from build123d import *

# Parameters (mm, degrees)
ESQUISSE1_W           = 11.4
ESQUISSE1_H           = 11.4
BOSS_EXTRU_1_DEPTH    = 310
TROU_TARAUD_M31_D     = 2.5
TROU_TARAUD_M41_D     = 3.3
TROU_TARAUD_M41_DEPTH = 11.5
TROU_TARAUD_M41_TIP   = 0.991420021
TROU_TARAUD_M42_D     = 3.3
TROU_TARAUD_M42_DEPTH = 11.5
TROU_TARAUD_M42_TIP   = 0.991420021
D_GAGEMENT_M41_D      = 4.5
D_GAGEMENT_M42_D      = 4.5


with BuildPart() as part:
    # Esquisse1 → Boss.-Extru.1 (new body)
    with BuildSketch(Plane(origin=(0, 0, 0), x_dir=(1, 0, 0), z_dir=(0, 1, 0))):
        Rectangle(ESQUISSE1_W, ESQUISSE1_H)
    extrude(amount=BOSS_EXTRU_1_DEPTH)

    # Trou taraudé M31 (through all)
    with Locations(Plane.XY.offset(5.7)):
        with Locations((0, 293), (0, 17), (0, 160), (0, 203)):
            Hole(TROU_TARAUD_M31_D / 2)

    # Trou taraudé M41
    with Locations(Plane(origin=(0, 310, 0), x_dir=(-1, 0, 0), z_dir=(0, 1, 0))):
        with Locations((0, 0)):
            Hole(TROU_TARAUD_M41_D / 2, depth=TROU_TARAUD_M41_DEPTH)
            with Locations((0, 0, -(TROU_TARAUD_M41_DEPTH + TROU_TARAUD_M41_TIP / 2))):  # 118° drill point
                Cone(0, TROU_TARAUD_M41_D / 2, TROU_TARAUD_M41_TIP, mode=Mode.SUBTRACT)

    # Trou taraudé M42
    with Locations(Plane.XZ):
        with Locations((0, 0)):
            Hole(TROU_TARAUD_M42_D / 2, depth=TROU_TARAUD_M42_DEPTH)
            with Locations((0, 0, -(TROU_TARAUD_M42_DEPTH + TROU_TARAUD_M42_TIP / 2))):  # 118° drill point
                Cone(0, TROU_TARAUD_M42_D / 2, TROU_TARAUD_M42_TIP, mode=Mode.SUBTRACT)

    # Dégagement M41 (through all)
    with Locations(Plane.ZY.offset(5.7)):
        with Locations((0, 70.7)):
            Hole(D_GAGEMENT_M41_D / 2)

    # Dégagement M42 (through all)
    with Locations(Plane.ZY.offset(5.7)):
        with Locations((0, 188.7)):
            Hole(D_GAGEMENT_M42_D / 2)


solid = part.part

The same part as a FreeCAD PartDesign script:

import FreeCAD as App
import Part
import Sketcher
from FreeCAD import Vector

doc = App.newDocument("Part")
params = doc.addObject("Spreadsheet::Sheet", "Params")
for row, (alias, value) in enumerate([
    ("sketch1_width", "11.4 mm"),
    ("pad1_length", "310 mm"),
    ("sketch2_diameter", "2.5 mm"),
    ("hole_diameter", "2.5 mm"),
    ("sketch3_diameter", "3.3 mm"),
    ("hole2_diameter", "3.3 mm"),
    ("hole2_depth", "11.5 mm"),
    ("sketch4_diameter", "3.3 mm"),
    ("hole3_diameter", "3.3 mm"),
    ("hole3_depth", "11.5 mm"),
    ("sketch5_diameter", "4.5 mm"),
    ("hole4_diameter", "4.5 mm"),
    ("sketch6_diameter", "4.5 mm"),
    ("hole5_diameter", "4.5 mm"),
], start=1):
    params.set(f"A{row}", alias)
    params.set(f"B{row}", "=" + value)
    params.setAlias(f"B{row}", alias)

body = doc.addObject("PartDesign::Body", "Body")

# Sketch on XZ plane
sketch1 = doc.addObject("Sketcher::SketchObject", "Sketch")
body.addObject(sketch1)
sketch1.AttachmentSupport = (doc.XZ_Plane, [""])
sketch1.MapMode = "FlatFace"
sketch1.addGeometry(Part.LineSegment(Vector(-6, -6, 0), Vector(-6, 6, 0)), False)
sketch1.addGeometry(Part.LineSegment(Vector(-6, 6, 0), Vector(6, 6, 0)), False)
sketch1.addGeometry(Part.LineSegment(Vector(6, 6, 0), Vector(6, -6, 0)), False)
sketch1.addGeometry(Part.LineSegment(Vector(6, -6, 0), Vector(-6, -6, 0)), False)
sketch1.addConstraint(Sketcher.Constraint("Coincident", 0, 2, 1, 1))
sketch1.addConstraint(Sketcher.Constraint("Coincident", 1, 2, 2, 1))
sketch1.addConstraint(Sketcher.Constraint("Coincident", 2, 2, 3, 1))
sketch1.addConstraint(Sketcher.Constraint("Coincident", 3, 2, 0, 1))
sketch1.addConstraint(Sketcher.Constraint("Vertical", 0))
sketch1.addConstraint(Sketcher.Constraint("Horizontal", 1))
sketch1.addConstraint(Sketcher.Constraint("Vertical", 2))
sketch1.addConstraint(Sketcher.Constraint("Horizontal", 3))
sketch1.addConstraint(Sketcher.Constraint("Symmetric", 0, 2, 2, 2, -1, 1))
sketch1.addConstraint(Sketcher.Constraint("Equal", 3, 0))
sketch1.addConstraint(Sketcher.Constraint("DistanceX", 1, 1, 1, 2, 11.4))
sketch1.setExpression("Constraints[10]", "Params.sketch1_width")
pad1 = doc.addObject("PartDesign::Pad", "Pad")
body.addObject(pad1)
pad1.Profile = sketch1
pad1.setExpression("Length", "Params.pad1_length")
pad1.Reversed = True

# Sketch on XY plane
sketch2 = doc.addObject("Sketcher::SketchObject", "Sketch001")
body.addObject(sketch2)
sketch2.AttachmentSupport = (doc.XY_Plane, [""])
sketch2.MapMode = "FlatFace"
sketch2.AttachmentOffset = App.Placement(Vector(0, 0, 5.7), App.Rotation())
sketch2.addGeometry(Part.Circle(Vector(0, 293, 0), Vector(0, 0, 1), 1.2), False)
sketch2.addGeometry(Part.Circle(Vector(0, 17, 0), Vector(0, 0, 1), 1.2), False)
sketch2.addGeometry(Part.Circle(Vector(0, 160, 0), Vector(0, 0, 1), 1.2), False)
sketch2.addGeometry(Part.Circle(Vector(0, 203, 0), Vector(0, 0, 1), 1.2), False)
sketch2.addConstraint(Sketcher.Constraint("Equal", 0, 1))
sketch2.addConstraint(Sketcher.Constraint("Equal", 1, 2))
sketch2.addConstraint(Sketcher.Constraint("Equal", 2, 3))
sketch2.addConstraint(Sketcher.Constraint("PointOnObject", 0, 3, -2))
sketch2.addConstraint(Sketcher.Constraint("PointOnObject", 1, 3, -2))
sketch2.addConstraint(Sketcher.Constraint("PointOnObject", 2, 3, -2))
sketch2.addConstraint(Sketcher.Constraint("PointOnObject", 3, 3, -2))
sketch2.addConstraint(Sketcher.Constraint("Diameter", 0, 2.5))
sketch2.addConstraint(Sketcher.Constraint("DistanceY", -1, 1, 0, 3, 293.0))
sketch2.addConstraint(Sketcher.Constraint("DistanceY", -1, 1, 1, 3, 17.0))
sketch2.addConstraint(Sketcher.Constraint("DistanceY", -1, 1, 2, 3, 160.0))
sketch2.addConstraint(Sketcher.Constraint("DistanceY", -1, 1, 3, 3, 203.0))
sketch2.setExpression("Constraints[7]", "Params.sketch2_diameter")
doc.recompute()
hole = doc.addObject("PartDesign::Hole", "Hole")
body.addObject(hole)
hole.Profile = sketch2
hole.ThreadType = "None"
hole.setExpression("Diameter", "Params.hole_diameter")
hole.DepthType = "ThroughAll"

# Sketch on XZ plane
sketch3 = doc.addObject("Sketcher::SketchObject", "Sketch002")
body.addObject(sketch3)
sketch3.AttachmentSupport = (doc.XZ_Plane, [""])
sketch3.MapMode = "FlatFace"
sketch3.AttachmentOffset = App.Placement(Vector(0, 0, -310), App.Rotation())
sketch3.addGeometry(Part.Circle(Vector(0, 0, 0), Vector(0, 0, 1), 1.6), False)
sketch3.addConstraint(Sketcher.Constraint("Coincident", 0, 3, -1, 1))
sketch3.addConstraint(Sketcher.Constraint("Diameter", 0, 3.3))
sketch3.setExpression("Constraints[1]", "Params.sketch3_diameter")
doc.recompute()
hole2 = doc.addObject("PartDesign::Hole", "Hole001")
body.addObject(hole2)
hole2.Profile = sketch3
hole2.ThreadType = "None"
hole2.setExpression("Diameter", "Params.hole2_diameter")
hole2.DepthType = "Dimension"
hole2.setExpression("Depth", "Params.hole2_depth")
hole2.DrillPoint = "Angled"
hole2.DrillPointAngle = 118
hole2.Reversed = True

# Sketch on XZ plane
sketch4 = doc.addObject("Sketcher::SketchObject", "Sketch003")
body.addObject(sketch4)
sketch4.AttachmentSupport = (doc.XZ_Plane, [""])
sketch4.MapMode = "FlatFace"
sketch4.addGeometry(Part.Circle(Vector(0, 0, 0), Vector(0, 0, 1), 1.6), False)
sketch4.addConstraint(Sketcher.Constraint("Coincident", 0, 3, -1, 1))
sketch4.addConstraint(Sketcher.Constraint("Diameter", 0, 3.3))
sketch4.setExpression("Constraints[1]", "Params.sketch4_diameter")
doc.recompute()
hole3 = doc.addObject("PartDesign::Hole", "Hole002")
body.addObject(hole3)
hole3.Profile = sketch4
hole3.ThreadType = "None"
hole3.setExpression("Diameter", "Params.hole3_diameter")
hole3.DepthType = "Dimension"
hole3.setExpression("Depth", "Params.hole3_depth")
hole3.DrillPoint = "Angled"
hole3.DrillPointAngle = 118

# Sketch on YZ plane
sketch5 = doc.addObject("Sketcher::SketchObject", "Sketch004")
body.addObject(sketch5)
sketch5.AttachmentSupport = (doc.YZ_Plane, [""])
sketch5.MapMode = "FlatFace"
sketch5.AttachmentOffset = App.Placement(Vector(0, 0, -5.7), App.Rotation())
sketch5.addGeometry(Part.Circle(Vector(70.7, 0, 0), Vector(0, 0, 1), 2.2), False)
sketch5.addConstraint(Sketcher.Constraint("PointOnObject", 0, 3, -1))
sketch5.addConstraint(Sketcher.Constraint("Diameter", 0, 4.5))
sketch5.addConstraint(Sketcher.Constraint("DistanceX", -1, 1, 0, 3, 70.7))
sketch5.setExpression("Constraints[1]", "Params.sketch5_diameter")
doc.recompute()
hole4 = doc.addObject("PartDesign::Hole", "Hole003")
body.addObject(hole4)
hole4.Profile = sketch5
hole4.ThreadType = "None"
hole4.setExpression("Diameter", "Params.hole4_diameter")
hole4.DepthType = "ThroughAll"
hole4.Reversed = True

# Sketch on YZ plane
sketch6 = doc.addObject("Sketcher::SketchObject", "Sketch005")
body.addObject(sketch6)
sketch6.AttachmentSupport = (doc.YZ_Plane, [""])
sketch6.MapMode = "FlatFace"
sketch6.AttachmentOffset = App.Placement(Vector(0, 0, -5.7), App.Rotation())
sketch6.addGeometry(Part.Circle(Vector(188.7, 0, 0), Vector(0, 0, 1), 2.2), False)
sketch6.addConstraint(Sketcher.Constraint("PointOnObject", 0, 3, -1))
sketch6.addConstraint(Sketcher.Constraint("Diameter", 0, 4.5))
sketch6.addConstraint(Sketcher.Constraint("DistanceX", -1, 1, 0, 3, 188.7))
sketch6.setExpression("Constraints[1]", "Params.sketch6_diameter")
doc.recompute()
hole5 = doc.addObject("PartDesign::Hole", "Hole004")
body.addObject(hole5)
hole5.Profile = sketch6
hole5.ThreadType = "None"
hole5.setExpression("Diameter", "Params.hole5_diameter")
hole5.DepthType = "ThroughAll"
hole5.Reversed = True

doc.recompute()
